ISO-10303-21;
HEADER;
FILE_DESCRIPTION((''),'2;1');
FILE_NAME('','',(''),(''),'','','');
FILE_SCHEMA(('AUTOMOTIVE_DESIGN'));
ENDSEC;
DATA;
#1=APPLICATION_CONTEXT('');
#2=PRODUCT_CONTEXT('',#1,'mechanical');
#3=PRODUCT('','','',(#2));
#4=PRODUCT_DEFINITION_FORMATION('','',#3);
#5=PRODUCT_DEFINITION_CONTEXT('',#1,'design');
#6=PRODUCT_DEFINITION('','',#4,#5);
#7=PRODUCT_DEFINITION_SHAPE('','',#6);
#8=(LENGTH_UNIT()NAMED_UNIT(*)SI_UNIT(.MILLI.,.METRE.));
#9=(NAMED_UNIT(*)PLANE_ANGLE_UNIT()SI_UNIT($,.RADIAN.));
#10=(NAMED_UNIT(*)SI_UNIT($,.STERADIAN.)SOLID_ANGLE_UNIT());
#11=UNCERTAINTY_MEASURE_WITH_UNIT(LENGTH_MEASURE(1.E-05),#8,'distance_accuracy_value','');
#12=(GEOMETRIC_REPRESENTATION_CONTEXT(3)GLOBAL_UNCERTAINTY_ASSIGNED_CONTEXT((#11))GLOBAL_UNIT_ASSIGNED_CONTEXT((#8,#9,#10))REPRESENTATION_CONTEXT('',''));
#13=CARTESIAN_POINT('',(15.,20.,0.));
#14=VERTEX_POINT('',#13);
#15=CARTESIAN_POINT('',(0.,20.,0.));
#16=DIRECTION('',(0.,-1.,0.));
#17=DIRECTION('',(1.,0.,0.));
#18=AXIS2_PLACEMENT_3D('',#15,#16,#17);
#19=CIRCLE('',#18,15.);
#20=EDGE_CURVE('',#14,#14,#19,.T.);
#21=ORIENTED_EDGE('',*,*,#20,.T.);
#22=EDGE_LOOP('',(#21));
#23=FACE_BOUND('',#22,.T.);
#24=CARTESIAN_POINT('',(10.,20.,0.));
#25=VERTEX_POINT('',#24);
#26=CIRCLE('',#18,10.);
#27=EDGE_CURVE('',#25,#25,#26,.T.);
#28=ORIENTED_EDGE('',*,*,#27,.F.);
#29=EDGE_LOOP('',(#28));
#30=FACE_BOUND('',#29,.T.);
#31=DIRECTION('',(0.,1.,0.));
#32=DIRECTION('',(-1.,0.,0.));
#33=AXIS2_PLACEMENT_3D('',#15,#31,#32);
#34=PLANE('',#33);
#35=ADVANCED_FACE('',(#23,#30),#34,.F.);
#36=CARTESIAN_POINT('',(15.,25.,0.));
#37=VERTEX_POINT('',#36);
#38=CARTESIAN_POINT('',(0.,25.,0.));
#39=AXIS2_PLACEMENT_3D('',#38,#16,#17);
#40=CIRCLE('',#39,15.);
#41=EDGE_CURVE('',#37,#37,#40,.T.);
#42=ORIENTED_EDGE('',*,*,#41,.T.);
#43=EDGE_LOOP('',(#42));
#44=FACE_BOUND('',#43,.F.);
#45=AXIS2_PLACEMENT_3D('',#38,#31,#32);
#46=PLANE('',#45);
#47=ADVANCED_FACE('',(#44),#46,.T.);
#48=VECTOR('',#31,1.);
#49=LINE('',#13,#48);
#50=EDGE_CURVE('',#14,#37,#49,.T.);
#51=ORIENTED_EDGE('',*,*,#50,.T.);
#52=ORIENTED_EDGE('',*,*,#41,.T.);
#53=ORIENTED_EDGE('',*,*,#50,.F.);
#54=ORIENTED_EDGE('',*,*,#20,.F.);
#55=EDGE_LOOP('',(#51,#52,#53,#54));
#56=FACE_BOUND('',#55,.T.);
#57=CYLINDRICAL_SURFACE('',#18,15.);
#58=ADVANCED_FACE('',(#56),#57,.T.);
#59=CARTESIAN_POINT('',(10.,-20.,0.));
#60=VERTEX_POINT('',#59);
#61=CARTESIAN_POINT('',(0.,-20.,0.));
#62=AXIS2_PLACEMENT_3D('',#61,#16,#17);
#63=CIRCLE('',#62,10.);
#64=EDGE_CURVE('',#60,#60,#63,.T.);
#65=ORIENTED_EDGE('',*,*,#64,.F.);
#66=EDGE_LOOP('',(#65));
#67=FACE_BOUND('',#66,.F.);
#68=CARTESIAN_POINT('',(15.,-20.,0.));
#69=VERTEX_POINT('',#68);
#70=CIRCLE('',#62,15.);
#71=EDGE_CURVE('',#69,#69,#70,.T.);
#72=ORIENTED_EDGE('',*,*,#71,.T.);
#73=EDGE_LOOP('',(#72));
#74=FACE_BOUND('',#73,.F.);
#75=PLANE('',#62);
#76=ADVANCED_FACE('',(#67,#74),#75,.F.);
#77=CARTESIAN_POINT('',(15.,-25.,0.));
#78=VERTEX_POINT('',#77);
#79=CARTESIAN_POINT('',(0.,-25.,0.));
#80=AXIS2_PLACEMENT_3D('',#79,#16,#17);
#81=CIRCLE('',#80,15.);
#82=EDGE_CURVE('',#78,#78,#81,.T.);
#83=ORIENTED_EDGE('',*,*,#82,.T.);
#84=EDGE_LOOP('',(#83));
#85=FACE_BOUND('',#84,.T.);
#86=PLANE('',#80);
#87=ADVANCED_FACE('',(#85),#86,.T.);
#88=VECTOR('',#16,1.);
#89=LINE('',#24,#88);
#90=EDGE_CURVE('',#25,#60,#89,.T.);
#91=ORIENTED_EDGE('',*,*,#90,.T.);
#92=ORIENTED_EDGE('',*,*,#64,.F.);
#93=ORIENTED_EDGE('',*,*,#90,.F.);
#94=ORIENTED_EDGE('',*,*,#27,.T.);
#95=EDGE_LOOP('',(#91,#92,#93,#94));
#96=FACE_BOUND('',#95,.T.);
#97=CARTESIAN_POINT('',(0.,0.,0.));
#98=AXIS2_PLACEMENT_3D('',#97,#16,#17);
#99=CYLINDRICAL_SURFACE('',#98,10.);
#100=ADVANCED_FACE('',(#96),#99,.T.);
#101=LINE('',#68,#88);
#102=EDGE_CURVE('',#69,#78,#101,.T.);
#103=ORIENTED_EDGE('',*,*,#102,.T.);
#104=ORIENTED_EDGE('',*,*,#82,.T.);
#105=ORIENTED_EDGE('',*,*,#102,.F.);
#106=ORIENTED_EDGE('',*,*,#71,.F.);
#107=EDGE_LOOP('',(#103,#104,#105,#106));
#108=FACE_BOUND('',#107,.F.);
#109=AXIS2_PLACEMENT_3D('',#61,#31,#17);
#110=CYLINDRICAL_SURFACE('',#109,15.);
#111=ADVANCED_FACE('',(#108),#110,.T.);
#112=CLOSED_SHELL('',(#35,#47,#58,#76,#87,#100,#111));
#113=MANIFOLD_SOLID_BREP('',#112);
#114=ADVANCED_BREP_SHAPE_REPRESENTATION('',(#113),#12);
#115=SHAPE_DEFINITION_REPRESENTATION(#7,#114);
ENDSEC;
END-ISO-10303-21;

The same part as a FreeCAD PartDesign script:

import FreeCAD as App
import Part
import Sketcher

V = App.Vector

doc = App.newDocument("Part")
body = doc.addObject("PartDesign::Body", "Body")

sketch1 = body.newObject("Sketcher::SketchObject", "Sketch")
sketch1.AttachmentSupport = (doc.getObject("XZ_Plane"), [""])
sketch1.MapMode = "FlatFace"
sketch1.addGeometry(Part.Circle(V(0, 0, 0), V(0, 0, 1), 10), False)
sketch1.addConstraint([
    Sketcher.Constraint("Coincident", 0, 3, -1, 1),
    Sketcher.Constraint("Diameter", 0, 20.0),
])
pad1 = body.newObject("PartDesign::Pad", "Pad")
pad1.Profile = sketch1
pad1.Length = 20

sketch2 = body.newObject("Sketcher::SketchObject", "Sketch001")
sketch2.AttachmentSupport = (doc.getObject("XZ_Plane"), [""])
sketch2.MapMode = "FlatFace"
sketch2.AttachmentOffset = App.Placement(V(0, 0, 20), App.Rotation())
sketch2.addGeometry(Part.Circle(V(0, 0, 0), V(0, 0, 1), 15), False)
sketch2.addConstraint([
    Sketcher.Constraint("Coincident", 0, 3, -1, 1),
    Sketcher.Constraint("Diameter", 0, 30.0),
])
pad2 = body.newObject("PartDesign::Pad", "Pad001")
pad2.Profile = sketch2
pad2.Length = 5
body2 = doc.addObject("PartDesign::Body", "Body001")
doc.recompute()

body2.BaseFeature = body
doc.recompute()

mirroring = doc.addObject("Part::Mirroring", "Mirroring")
mirroring.Source = body
mirroring.Base = V(0, 0, 0)
mirroring.Normal = V(0, 1, 0)
body3 = doc.addObject("PartDesign::Body", "Body002")
body3.BaseFeature = mirroring
boolean = body2.newObject("PartDesign::Boolean", "Boolean")
boolean.Type = "Fuse"
boolean.addObjects([body3])
doc.recompute()
mirroring.Visibility = False

doc.recompute()
